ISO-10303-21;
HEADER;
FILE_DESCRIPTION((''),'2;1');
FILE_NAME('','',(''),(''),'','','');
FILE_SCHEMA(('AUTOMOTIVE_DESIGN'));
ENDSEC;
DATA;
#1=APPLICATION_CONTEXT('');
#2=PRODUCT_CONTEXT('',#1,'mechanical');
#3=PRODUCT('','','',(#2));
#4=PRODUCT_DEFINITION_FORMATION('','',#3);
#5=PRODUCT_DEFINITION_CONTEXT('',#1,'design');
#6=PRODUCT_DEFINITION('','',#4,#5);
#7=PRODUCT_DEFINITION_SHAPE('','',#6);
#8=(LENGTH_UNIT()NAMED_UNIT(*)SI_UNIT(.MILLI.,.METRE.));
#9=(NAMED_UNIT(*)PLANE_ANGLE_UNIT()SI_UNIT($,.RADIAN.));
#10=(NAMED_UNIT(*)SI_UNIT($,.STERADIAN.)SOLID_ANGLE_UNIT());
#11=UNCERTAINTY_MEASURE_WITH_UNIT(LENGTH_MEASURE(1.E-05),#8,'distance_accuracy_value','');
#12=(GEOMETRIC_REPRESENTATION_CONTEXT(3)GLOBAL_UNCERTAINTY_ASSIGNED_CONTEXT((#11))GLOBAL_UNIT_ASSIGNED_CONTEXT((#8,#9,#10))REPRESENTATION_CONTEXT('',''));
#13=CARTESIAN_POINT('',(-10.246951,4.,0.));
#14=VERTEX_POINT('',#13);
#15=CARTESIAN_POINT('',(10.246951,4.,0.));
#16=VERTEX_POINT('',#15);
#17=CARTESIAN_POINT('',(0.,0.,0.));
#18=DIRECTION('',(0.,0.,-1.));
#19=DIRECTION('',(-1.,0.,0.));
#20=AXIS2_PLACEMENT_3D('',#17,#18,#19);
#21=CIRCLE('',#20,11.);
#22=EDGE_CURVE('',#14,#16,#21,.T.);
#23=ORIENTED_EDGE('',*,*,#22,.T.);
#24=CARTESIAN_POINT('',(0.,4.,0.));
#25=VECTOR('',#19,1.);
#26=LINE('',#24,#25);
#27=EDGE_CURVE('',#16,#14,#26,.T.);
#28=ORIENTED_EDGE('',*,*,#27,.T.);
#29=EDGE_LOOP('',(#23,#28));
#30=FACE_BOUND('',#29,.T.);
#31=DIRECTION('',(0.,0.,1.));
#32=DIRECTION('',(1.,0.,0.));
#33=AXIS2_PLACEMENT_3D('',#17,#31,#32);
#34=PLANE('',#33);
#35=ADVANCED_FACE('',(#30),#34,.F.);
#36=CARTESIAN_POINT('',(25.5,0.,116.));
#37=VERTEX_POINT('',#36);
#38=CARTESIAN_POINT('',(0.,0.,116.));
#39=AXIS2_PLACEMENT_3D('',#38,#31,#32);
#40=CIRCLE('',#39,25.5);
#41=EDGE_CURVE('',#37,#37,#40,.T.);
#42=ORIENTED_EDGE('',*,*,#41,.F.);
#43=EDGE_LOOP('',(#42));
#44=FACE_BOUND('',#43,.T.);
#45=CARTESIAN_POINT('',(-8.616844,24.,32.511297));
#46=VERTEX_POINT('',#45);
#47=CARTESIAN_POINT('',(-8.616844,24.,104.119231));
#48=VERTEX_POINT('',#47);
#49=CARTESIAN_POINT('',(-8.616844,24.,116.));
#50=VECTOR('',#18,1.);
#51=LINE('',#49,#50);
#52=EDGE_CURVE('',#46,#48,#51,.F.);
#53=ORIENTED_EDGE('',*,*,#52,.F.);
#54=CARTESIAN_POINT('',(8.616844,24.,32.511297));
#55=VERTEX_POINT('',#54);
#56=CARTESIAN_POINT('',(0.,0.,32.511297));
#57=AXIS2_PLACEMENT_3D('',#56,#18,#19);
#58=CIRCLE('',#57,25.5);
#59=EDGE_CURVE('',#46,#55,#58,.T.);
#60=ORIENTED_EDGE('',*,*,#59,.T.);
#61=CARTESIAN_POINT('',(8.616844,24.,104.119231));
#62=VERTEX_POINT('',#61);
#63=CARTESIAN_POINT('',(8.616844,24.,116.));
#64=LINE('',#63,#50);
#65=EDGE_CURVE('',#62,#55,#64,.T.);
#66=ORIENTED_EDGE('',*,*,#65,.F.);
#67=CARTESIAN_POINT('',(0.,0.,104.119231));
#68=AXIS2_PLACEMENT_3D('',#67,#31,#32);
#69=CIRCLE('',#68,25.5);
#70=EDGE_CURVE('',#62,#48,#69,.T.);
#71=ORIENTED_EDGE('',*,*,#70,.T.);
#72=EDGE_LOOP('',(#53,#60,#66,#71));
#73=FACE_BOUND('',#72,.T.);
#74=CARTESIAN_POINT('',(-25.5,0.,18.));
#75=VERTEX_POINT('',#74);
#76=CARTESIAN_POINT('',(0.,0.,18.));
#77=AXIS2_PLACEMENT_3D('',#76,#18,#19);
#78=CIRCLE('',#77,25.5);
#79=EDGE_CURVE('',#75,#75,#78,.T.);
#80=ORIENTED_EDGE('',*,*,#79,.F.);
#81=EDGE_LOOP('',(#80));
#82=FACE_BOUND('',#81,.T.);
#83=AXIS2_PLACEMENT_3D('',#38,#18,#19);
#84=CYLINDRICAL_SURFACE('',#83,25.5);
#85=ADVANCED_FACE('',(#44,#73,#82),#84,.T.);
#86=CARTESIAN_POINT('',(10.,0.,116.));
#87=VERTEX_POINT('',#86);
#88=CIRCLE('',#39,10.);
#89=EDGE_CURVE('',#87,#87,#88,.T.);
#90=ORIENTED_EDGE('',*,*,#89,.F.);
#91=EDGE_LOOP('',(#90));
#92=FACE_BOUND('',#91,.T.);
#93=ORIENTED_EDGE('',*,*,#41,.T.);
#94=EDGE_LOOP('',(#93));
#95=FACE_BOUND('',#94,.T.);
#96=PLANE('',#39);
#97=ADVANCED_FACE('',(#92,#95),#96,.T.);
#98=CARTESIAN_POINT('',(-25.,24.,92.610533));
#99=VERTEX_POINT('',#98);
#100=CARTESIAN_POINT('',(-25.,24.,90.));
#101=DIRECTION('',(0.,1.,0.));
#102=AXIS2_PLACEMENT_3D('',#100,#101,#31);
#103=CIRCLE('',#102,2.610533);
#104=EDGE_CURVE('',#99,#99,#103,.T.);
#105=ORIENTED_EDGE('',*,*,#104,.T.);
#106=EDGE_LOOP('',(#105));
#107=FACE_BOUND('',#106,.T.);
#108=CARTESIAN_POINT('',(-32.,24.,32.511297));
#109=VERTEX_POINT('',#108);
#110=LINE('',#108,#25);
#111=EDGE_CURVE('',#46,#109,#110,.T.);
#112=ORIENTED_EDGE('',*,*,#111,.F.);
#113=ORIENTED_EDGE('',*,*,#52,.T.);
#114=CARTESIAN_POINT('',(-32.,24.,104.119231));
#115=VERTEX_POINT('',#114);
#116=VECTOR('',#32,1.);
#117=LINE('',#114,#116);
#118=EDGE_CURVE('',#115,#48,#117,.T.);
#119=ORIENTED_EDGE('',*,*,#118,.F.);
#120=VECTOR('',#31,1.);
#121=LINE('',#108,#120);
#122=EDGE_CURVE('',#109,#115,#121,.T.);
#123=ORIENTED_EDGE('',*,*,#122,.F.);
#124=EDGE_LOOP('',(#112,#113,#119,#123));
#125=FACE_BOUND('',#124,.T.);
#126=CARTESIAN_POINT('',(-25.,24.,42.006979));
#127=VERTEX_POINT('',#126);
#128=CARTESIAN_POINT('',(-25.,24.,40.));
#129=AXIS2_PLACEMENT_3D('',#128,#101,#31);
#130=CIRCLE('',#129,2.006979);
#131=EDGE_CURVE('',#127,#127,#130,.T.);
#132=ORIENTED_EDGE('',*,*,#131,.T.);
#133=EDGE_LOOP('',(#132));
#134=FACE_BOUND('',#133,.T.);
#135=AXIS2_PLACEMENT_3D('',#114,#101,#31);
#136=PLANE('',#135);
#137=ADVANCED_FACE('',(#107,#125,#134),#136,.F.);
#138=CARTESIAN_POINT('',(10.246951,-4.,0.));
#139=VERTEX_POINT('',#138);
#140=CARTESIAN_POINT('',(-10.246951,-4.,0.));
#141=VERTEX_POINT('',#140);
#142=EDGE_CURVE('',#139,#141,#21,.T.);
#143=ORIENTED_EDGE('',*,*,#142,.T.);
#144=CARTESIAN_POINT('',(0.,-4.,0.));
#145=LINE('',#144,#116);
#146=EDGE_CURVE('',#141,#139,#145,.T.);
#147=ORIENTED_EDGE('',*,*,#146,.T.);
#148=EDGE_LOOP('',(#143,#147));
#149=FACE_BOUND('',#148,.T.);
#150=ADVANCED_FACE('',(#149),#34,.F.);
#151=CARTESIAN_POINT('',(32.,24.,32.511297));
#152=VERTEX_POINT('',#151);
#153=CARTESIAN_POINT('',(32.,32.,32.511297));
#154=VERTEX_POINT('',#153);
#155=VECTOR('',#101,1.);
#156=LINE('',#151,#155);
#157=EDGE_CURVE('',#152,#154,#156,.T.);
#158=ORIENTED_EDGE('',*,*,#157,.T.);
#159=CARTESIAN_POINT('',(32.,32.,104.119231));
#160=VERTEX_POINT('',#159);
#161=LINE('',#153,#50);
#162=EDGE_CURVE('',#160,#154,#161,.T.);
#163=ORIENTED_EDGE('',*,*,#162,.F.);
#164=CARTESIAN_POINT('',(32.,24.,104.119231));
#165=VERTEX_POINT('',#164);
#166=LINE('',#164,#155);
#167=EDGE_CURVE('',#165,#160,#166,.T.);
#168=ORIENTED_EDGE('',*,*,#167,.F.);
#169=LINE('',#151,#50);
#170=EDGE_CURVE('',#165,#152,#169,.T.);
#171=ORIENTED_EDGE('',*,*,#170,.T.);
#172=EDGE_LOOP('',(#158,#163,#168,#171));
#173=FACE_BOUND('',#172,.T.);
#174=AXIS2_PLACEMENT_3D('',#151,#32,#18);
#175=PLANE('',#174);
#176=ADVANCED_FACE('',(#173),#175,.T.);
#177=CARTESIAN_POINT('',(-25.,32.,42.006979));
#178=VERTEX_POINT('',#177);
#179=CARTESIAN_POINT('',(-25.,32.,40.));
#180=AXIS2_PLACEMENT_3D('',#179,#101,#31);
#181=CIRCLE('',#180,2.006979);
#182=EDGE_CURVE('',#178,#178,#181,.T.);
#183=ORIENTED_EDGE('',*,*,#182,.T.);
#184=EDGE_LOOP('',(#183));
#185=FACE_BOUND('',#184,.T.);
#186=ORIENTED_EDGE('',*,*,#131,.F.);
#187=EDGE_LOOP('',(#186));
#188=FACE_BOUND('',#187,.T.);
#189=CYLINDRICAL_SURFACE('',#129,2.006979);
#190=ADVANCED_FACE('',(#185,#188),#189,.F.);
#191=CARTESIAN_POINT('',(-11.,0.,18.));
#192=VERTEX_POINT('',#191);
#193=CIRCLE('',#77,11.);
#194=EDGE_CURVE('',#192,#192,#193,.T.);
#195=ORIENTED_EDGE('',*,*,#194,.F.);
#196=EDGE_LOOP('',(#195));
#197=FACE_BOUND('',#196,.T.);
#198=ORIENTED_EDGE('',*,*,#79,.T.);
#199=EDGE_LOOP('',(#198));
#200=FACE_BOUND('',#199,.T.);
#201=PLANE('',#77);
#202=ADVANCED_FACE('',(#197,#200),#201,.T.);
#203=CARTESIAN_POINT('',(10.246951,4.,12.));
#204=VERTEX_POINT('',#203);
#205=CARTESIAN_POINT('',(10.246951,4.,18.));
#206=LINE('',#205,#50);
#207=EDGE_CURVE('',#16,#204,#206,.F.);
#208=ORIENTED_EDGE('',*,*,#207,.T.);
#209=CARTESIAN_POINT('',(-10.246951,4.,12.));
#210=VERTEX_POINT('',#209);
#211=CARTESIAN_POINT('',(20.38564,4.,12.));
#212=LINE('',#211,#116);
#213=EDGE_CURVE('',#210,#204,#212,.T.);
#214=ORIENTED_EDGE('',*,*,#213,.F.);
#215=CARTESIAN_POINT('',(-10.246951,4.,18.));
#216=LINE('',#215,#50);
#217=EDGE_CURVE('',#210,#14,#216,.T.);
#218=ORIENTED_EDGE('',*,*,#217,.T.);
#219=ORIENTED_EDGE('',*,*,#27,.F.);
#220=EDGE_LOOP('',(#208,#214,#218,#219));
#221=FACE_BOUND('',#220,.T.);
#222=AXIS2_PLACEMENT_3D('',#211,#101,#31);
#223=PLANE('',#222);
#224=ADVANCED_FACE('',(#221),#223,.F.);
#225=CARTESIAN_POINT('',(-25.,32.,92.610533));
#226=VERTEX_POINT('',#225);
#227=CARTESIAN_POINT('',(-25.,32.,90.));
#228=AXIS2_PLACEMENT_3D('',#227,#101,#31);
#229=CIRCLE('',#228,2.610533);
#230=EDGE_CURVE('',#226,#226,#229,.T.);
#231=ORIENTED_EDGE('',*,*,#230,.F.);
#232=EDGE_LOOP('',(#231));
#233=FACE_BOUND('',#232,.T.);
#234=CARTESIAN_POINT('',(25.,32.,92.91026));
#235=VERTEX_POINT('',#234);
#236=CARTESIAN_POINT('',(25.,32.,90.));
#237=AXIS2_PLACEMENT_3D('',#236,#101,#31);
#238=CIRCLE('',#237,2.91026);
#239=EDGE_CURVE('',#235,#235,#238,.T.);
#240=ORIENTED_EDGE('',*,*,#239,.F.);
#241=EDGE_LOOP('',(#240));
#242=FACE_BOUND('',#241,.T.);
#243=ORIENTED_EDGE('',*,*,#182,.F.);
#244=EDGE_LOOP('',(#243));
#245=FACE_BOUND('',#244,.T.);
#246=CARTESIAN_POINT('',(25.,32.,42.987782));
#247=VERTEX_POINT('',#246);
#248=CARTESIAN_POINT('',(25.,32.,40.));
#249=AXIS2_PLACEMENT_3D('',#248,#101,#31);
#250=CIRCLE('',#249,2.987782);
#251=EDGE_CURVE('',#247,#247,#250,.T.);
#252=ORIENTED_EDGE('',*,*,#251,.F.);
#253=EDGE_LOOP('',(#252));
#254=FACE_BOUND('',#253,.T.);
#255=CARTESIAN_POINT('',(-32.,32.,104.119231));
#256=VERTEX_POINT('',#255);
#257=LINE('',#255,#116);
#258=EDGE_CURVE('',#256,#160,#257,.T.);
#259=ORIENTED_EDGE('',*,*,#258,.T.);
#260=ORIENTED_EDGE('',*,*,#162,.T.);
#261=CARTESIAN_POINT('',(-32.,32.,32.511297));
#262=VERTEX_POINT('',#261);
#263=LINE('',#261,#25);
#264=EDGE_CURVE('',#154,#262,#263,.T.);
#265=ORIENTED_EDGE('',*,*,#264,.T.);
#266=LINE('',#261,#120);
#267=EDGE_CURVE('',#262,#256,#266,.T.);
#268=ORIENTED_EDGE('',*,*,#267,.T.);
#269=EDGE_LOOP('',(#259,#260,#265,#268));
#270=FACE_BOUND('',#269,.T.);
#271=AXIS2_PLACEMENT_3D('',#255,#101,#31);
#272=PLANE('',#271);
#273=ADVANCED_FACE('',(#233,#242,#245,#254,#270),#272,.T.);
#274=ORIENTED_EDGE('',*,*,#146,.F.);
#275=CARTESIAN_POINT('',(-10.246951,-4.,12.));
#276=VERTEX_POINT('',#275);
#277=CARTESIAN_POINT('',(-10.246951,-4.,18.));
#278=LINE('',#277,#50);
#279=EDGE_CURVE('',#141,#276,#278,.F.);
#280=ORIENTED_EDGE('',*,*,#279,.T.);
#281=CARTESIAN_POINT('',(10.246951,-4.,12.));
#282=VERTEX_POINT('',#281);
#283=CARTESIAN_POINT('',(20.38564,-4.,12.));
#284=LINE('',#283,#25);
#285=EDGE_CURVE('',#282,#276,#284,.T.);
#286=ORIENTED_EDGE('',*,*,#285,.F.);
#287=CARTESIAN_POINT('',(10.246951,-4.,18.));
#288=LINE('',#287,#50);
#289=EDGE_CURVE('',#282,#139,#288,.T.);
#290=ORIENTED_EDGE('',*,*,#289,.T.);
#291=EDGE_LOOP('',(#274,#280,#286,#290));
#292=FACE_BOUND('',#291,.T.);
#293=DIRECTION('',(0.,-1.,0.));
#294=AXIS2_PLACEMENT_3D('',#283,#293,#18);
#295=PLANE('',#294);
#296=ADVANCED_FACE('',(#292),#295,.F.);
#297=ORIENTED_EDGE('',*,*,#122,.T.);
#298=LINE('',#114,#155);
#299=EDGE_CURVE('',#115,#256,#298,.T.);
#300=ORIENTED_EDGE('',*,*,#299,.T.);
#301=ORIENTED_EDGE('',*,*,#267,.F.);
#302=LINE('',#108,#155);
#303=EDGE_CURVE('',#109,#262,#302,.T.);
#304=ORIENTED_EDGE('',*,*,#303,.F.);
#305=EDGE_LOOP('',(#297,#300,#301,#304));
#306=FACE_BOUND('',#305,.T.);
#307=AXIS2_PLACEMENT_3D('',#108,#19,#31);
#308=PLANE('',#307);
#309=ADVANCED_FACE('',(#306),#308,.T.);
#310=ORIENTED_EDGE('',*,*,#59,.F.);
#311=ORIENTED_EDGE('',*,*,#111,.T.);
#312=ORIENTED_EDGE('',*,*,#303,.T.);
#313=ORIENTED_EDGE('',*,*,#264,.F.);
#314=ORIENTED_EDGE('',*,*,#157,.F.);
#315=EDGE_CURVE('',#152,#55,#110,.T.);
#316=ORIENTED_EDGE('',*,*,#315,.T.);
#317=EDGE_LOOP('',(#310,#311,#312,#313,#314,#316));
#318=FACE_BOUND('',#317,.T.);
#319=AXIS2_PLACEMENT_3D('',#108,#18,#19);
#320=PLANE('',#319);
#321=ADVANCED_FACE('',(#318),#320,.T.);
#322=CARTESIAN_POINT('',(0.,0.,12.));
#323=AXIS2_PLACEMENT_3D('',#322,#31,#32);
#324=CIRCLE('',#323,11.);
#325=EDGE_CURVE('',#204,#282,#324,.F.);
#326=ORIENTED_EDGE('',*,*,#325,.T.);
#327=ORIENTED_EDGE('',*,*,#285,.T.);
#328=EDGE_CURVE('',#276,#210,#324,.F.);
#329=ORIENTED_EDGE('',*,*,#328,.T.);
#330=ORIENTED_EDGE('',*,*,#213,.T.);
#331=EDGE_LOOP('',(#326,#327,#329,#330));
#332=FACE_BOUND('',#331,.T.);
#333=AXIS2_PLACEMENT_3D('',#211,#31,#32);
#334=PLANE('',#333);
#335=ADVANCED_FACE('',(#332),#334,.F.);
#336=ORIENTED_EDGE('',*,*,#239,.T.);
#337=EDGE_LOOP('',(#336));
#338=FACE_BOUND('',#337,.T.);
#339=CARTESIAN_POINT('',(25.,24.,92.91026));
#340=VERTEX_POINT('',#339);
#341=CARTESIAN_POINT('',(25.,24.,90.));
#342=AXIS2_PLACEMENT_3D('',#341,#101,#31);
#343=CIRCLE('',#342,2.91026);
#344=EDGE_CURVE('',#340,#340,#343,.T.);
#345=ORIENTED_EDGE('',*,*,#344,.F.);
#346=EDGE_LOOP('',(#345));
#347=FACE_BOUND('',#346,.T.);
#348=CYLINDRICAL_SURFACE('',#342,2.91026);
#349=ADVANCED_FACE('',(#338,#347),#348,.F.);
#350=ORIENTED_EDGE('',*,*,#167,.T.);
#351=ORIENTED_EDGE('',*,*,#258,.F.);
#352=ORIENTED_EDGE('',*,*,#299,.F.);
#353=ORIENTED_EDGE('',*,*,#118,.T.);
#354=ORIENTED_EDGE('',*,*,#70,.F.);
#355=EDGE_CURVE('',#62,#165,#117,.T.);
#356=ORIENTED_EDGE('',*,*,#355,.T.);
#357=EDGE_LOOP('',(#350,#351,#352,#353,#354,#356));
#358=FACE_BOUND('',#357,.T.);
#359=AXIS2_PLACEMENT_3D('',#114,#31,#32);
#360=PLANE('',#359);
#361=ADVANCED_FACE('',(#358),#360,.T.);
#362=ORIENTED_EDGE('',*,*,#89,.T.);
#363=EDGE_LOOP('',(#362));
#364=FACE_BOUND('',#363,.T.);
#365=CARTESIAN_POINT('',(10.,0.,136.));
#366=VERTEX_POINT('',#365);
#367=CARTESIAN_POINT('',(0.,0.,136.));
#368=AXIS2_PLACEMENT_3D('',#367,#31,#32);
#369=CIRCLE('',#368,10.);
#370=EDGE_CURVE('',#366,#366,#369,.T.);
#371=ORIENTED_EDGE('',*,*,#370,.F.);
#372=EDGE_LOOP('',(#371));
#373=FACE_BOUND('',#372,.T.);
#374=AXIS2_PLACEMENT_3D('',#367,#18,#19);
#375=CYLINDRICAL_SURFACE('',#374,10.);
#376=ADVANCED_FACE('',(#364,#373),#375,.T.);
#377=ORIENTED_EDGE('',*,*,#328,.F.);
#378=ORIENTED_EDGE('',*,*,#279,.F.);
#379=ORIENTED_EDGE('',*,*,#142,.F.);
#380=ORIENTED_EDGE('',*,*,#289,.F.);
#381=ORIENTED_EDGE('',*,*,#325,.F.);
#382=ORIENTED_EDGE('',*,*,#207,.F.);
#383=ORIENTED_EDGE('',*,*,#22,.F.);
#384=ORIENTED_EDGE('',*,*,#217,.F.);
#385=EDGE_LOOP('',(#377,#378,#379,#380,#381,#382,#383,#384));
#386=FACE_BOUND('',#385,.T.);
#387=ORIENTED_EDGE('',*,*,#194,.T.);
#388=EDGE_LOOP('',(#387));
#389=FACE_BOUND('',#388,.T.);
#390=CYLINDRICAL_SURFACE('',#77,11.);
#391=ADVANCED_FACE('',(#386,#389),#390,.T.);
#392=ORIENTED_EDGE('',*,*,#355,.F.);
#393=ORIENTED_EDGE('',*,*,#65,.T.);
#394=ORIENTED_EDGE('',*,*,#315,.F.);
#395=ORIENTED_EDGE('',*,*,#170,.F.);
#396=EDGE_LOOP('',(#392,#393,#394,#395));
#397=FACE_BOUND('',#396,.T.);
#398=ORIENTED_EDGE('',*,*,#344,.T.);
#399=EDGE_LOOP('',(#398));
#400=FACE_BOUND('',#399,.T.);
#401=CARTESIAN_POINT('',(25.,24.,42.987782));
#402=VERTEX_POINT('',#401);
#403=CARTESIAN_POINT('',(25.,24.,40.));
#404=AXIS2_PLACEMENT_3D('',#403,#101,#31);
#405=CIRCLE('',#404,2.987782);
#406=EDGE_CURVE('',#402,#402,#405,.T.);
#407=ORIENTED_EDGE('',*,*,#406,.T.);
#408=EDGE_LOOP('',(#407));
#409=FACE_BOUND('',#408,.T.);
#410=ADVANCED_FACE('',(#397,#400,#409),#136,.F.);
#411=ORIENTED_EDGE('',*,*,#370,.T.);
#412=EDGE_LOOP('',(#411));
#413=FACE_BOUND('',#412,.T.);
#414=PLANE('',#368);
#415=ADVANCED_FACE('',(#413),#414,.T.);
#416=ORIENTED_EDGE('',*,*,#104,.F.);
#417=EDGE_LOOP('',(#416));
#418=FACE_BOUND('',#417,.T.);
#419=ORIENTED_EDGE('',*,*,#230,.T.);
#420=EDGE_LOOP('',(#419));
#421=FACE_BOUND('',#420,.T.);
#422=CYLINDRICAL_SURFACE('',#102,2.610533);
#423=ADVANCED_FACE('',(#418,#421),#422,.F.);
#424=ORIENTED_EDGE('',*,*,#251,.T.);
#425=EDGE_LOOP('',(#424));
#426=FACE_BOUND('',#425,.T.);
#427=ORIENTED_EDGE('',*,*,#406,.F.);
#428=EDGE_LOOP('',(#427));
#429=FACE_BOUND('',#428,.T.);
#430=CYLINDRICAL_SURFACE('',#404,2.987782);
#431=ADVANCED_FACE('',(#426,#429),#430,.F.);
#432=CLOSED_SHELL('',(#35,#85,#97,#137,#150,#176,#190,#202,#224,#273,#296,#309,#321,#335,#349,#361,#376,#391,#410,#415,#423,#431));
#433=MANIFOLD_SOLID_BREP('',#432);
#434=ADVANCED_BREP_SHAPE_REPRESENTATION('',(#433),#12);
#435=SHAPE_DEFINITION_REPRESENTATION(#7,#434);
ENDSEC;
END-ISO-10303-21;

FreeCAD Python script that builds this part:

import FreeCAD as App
import Part
import Sketcher
from FreeCAD import Vector

doc = App.newDocument("Part")
body = doc.addObject("PartDesign::Body", "Body")

# Sketch on XY plane
sketch1 = body.newObject("Sketcher::SketchObject", "Sketch")
sketch1.AttachmentSupport = (doc.getObject("XY_Plane"), [""])
sketch1.MapMode = "FlatFace"
sketch1.addGeometry(Part.Circle(Vector(0, 0, 0), Vector(0, 0, 1), 26), False)
sketch1.addConstraint([
    Sketcher.Constraint("Coincident", 0, 3, -1, 1),
    Sketcher.Constraint("Diameter", 0, 51.0),
])
pad1 = body.newObject("PartDesign::Pad", "Pad")
pad1.Profile = sketch1
pad1.Length = 116

# Sketch on XY plane
sketch2 = body.newObject("Sketcher::SketchObject", "Sketch001")
sketch2.AttachmentSupport = (doc.getObject("XY_Plane"), [""])
sketch2.MapMode = "FlatFace"
sketch2.addGeometry([
    Part.LineSegment(Vector(40, 40, 0), Vector(40, -40, 0)),  # 0
    Part.LineSegment(Vector(40, -40, 0), Vector(-40, -40, 0)),  # 1
    Part.LineSegment(Vector(-40, -40, 0), Vector(-40, 40, 0)),  # 2
    Part.LineSegment(Vector(-40, 40, 0), Vector(40, 40, 0)),  # 3
    Part.Circle(Vector(0, 0, 0), Vector(0, 0, 1), 11),  # 4
], False)
sketch2.addConstraint([
    Sketcher.Constraint("Coincident", 0, 2, 1, 1),
    Sketcher.Constraint("Coincident", 1, 2, 2, 1),
    Sketcher.Constraint("Coincident", 2, 2, 3, 1),
    Sketcher.Constraint("Coincident", 3, 2, 0, 1),
    Sketcher.Constraint("Vertical", 0),
    Sketcher.Constraint("Horizontal", 1),
    Sketcher.Constraint("Vertical", 2),
    Sketcher.Constraint("Horizontal", 3),
    Sketcher.Constraint("Coincident", 4, 3, -1, 1),
    Sketcher.Constraint("Symmetric", 0, 2, 2, 2, -1, 1),
    Sketcher.Constraint("Equal", 3, 0),
    Sketcher.Constraint("Diameter", 4, 22.0),
    Sketcher.Constraint("DistanceX", 1, 2, 1, 1, 80.318),
])
pocket1 = body.newObject("PartDesign::Pocket", "Pocket")
pocket1.Profile = sketch2
pocket1.Length = 18
pocket1.Reversed = True

# Sketch on XY plane
sketch3 = body.newObject("Sketcher::SketchObject", "Sketch002")
sketch3.AttachmentSupport = (doc.getObject("XY_Plane"), [""])
sketch3.MapMode = "FlatFace"
sketch3.addGeometry([
    Part.LineSegment(Vector(20, 4, 0), Vector(20, -4, 0)),
    Part.LineSegment(Vector(20, -4, 0), Vector(-15, -4, 0)),
    Part.LineSegment(Vector(-15, -4, 0), Vector(-15, 4, 0)),
    Part.LineSegment(Vector(-15, 4, 0), Vector(20, 4, 0)),
], False)
sketch3.addConstraint([
    Sketcher.Constraint("Coincident", 0, 2, 1, 1),
    Sketcher.Constraint("Coincident", 1, 2, 2, 1),
    Sketcher.Constraint("Coincident", 2, 2, 3, 1),
    Sketcher.Constraint("Coincident", 3, 2, 0, 1),
    Sketcher.Constraint("Vertical", 0),
    Sketcher.Constraint("Horizontal", 1),
    Sketcher.Constraint("Vertical", 2),
    Sketcher.Constraint("Horizontal", 3),
    Sketcher.Constraint("DistanceY", 0, 2, 0, 1, 8.0),
    Sketcher.Constraint("DistanceY", 0, 2, -1, 1, 4.0),
    Sketcher.Constraint("DistanceX", 1, 2, 1, 1, 35.319317),
    Sketcher.Constraint("DistanceX", -1, 1, 0, 2, 20.38564),
])
pocket2 = body.newObject("PartDesign::Pocket", "Pocket001")
pocket2.Profile = sketch3
pocket2.Length = 12
pocket2.Reversed = True

# Sketch on XZ plane
sketch4 = body.newObject("Sketcher::SketchObject", "Sketch003")
sketch4.AttachmentSupport = (doc.getObject("XZ_Plane"), [""])
sketch4.MapMode = "FlatFace"
sketch4.AttachmentOffset = App.Placement(Vector(0, 0, -32), App.Rotation())
sketch4.addGeometry([
    Part.LineSegment(Vector(32, 104.1, 0), Vector(32, 32.5, 0)),  # 0
    Part.LineSegment(Vector(32, 32.5, 0), Vector(-32, 32.5, 0)),  # 1
    Part.LineSegment(Vector(-32, 32.5, 0), Vector(-32, 104.1, 0)),  # 2
    Part.LineSegment(Vector(-32, 104.1, 0), Vector(32, 104.1, 0)),  # 3
    Part.Circle(Vector(25, 40, 0), Vector(0, 0, 1), 3),  # 4
    Part.Circle(Vector(-25, 40, 0), Vector(0, 0, 1), 2),  # 5
    Part.Circle(Vector(25, 90, 0), Vector(0, 0, 1), 2.9),  # 6
    Part.Circle(Vector(-25, 90, 0), Vector(0, 0, 1), 2.6),  # 7
], False)
sketch4.addConstraint([
    Sketcher.Constraint("Coincident", 0, 2, 1, 1),
    Sketcher.Constraint("Coincident", 1, 2, 2, 1),
    Sketcher.Constraint("Coincident", 2, 2, 3, 1),
    Sketcher.Constraint("Coincident", 3, 2, 0, 1),
    Sketcher.Constraint("Vertical", 0),
    Sketcher.Constraint("Horizontal", 1),
    Sketcher.Constraint("Vertical", 2),
    Sketcher.Constraint("Horizontal", 3),
    Sketcher.Constraint("Symmetric", 4, 3, 5, 3, -2),
    Sketcher.Constraint("Symmetric", 6, 3, 7, 3, -2),
    Sketcher.Constraint("Vertical", 4, 3, 6, 3),
    Sketcher.Constraint("DistanceX", 1, 2, 1, 1, 64.0),
    Sketcher.Constraint("DistanceX", -1, 1, 4, 3, 25.0),
    Sketcher.Constraint("DistanceY", -1, 1, 4, 3, 40.0),
    Sketcher.Constraint("DistanceY", -1, 1, 6, 3, 90.0),
    Sketcher.Constraint("DistanceX", -1, 1, 0, 2, 32.0),
    Sketcher.Constraint("Diameter", 6, 5.82052),
    Sketcher.Constraint("Diameter", 4, 5.975564),
    Sketcher.Constraint("Diameter", 5, 4.013958),
    Sketcher.Constraint("Diameter", 7, 5.221065),
    Sketcher.Constraint("DistanceY", 0, 2, 0, 1, 71.607934),
    Sketcher.Constraint("DistanceY", -1, 1, 2, 2, 104.119231),
])
pad2 = body.newObject("PartDesign::Pad", "Pad001")
pad2.Profile = sketch4
pad2.Length = 8

# Sketch on XY plane
sketch5 = body.newObject("Sketcher::SketchObject", "Sketch004")
sketch5.AttachmentSupport = (doc.getObject("XY_Plane"), [""])
sketch5.MapMode = "FlatFace"
sketch5.AttachmentOffset = App.Placement(Vector(0, 0, 116), App.Rotation())
sketch5.addGeometry(Part.Circle(Vector(0, 0, 0), Vector(0, 0, 1), 10), False)
sketch5.addConstraint([
    Sketcher.Constraint("Coincident", 0, 3, -1, 1),
    Sketcher.Constraint("Diameter", 0, 20.0),
])
pad3 = body.newObject("PartDesign::Pad", "Pad002")
pad3.Profile = sketch5
pad3.Length = 20

doc.recompute()
